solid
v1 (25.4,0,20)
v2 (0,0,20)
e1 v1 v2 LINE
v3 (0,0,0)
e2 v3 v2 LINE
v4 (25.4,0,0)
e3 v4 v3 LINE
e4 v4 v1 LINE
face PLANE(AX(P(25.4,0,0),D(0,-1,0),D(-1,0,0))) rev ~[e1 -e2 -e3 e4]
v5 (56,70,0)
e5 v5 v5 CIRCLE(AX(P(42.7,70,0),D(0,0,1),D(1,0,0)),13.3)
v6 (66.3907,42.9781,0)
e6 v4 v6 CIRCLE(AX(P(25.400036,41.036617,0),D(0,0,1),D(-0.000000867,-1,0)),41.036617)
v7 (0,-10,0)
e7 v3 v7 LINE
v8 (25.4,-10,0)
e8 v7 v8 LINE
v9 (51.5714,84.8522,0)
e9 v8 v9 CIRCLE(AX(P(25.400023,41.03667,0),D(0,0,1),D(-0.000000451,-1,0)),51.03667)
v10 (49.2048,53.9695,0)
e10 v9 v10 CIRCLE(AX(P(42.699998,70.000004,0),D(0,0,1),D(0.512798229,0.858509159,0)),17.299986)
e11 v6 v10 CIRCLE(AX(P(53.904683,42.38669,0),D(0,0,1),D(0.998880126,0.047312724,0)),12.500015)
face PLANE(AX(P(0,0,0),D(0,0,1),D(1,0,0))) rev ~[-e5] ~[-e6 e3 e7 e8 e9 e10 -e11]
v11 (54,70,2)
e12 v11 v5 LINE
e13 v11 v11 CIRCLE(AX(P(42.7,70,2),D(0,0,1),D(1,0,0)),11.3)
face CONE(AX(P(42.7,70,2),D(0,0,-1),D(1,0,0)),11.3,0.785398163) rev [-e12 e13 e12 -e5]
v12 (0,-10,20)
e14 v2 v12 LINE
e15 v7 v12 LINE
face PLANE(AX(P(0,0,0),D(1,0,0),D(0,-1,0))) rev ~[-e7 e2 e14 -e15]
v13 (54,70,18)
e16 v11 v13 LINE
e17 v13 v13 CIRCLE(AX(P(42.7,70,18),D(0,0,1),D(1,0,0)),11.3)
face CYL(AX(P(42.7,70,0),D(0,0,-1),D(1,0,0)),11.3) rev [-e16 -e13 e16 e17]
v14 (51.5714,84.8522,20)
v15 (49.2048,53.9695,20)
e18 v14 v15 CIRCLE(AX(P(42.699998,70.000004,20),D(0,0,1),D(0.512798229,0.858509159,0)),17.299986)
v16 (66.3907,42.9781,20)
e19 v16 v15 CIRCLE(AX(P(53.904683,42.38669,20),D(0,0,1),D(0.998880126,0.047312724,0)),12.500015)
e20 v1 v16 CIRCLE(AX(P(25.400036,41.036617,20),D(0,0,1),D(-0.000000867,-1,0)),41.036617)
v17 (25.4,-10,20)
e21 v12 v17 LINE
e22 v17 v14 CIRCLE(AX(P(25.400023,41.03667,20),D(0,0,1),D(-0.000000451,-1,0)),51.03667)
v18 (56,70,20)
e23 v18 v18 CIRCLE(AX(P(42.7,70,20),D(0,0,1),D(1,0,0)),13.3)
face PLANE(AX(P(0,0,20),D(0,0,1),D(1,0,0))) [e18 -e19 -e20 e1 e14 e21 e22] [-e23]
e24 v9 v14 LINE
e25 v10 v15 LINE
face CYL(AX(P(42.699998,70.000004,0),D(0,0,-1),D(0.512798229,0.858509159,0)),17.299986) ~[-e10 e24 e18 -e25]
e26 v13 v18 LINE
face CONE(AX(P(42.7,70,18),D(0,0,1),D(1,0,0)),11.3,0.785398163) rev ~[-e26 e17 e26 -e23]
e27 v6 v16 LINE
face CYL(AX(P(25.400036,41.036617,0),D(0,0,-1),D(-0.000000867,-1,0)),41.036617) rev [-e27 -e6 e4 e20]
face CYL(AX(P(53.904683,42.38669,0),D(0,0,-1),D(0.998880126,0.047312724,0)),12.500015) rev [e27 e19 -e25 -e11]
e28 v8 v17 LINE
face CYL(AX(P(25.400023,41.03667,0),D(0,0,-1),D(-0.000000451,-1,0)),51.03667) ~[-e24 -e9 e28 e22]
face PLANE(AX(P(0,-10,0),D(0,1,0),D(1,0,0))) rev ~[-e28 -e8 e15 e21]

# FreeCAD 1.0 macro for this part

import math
import FreeCAD as App
import Part
import Sketcher
from FreeCAD import Vector


def edges_at(feature, points):
    """Names of the edges that pass closest to the given points."""
    edges = feature.Shape.Edges
    near = lambda p: min(range(len(edges)), key=lambda i: edges[i].distToShape(Part.Vertex(*p))[0])
    return sorted({f"Edge{near(p) + 1}" for p in points})

doc = App.newDocument("Part")
params = doc.addObject("Spreadsheet::Sheet", "Params")
for row, (alias, value) in enumerate([
    ("sketch1_diameter", "22.6 mm"),
    ("sketch1_radius", "17.3 mm"),
    ("sketch1_radius2", "12.5 mm"),
    ("sketch1_height", "10 mm"),
    ("sketch1_width", "25.4 mm"),
    ("pad1_length", "20 mm"),
    ("chamfer_size", "2 mm"),
], start=1):
    params.set(f"A{row}", alias)
    params.set(f"B{row}", "=" + value)
    params.setAlias(f"B{row}", alias)

body = doc.addObject("PartDesign::Body", "Body")

# Sketch on XY plane
sketch1 = body.newObject("Sketcher::SketchObject", "Sketch")
sketch1.AttachmentSupport = (doc.getObject("XY_Plane"), [""])
sketch1.MapMode = "FlatFace"
sketch1.addGeometry([
    Part.LineSegment(Vector(0, 0, 0), Vector(0, -10, 0)),  # 0
    Part.LineSegment(Vector(0, -10, 0), Vector(25, -10, 0)),  # 1
    Part.ArcOfCircle(Part.Circle(Vector(25, 41, 0), Vector(0, 0, 1), 51), math.radians(-90), math.radians(59)),  # 2
    Part.ArcOfCircle(Part.Circle(Vector(43, 70, 0), Vector(0, 0, 1), 17), math.radians(59), math.radians(292)),  # 3
    Part.ArcOfCircle(Part.Circle(Vector(54, 42, 0), Vector(0, 0, 1), 12), math.radians(3), math.radians(112)),  # 4
    Part.ArcOfCircle(Part.Circle(Vector(25, 41, 0), Vector(0, 0, 1), 41), math.radians(-90), math.radians(3)),  # 5
    Part.LineSegment(Vector(25, 0, 0), Vector(0, 0, 0)),  # 6
    Part.Circle(Vector(43, 70, 0), Vector(0, 0, 1), 11),  # 7
], False)
sketch1.addConstraint([
    Sketcher.Constraint("Coincident", 0, 2, 1, 1),
    Sketcher.Constraint("Tangent", 1, 2, 2, 1),
    Sketcher.Constraint("Tangent", 2, 2, 3, 1),
    Sketcher.Constraint("Tangent", 3, 2, 4, 2),
    Sketcher.Constraint("Tangent", 4, 1, 5, 2),
    Sketcher.Constraint("Tangent", 5, 1, 6, 1),
    Sketcher.Constraint("Coincident", 6, 2, 0, 1),
    Sketcher.Constraint("Vertical", 0),
    Sketcher.Constraint("Horizontal", 1),
    Sketcher.Constraint("Horizontal", 6),
    Sketcher.Constraint("Coincident", 6, 2, -1, 1),
    Sketcher.Constraint("Coincident", 5, 3, 2, 3),
    Sketcher.Constraint("Coincident", 7, 3, 3, 3),
    Sketcher.Constraint("Diameter", 7, 22.6),
    Sketcher.Constraint("Radius", 3, 17.3),
    Sketcher.Constraint("Radius", 4, 12.5),
    Sketcher.Constraint("DistanceY", 0, 2, 0, 1, 10.0),
    Sketcher.Constraint("DistanceX", 1, 1, 1, 2, 25.4),
    Sketcher.Constraint("DistanceY", -1, 1, 3, 3, 70.0),
    Sketcher.Constraint("DistanceX", -1, 1, 3, 3, 42.7),
])
sketch1.setExpression("Constraints[13]", "Params.sketch1_diameter")
sketch1.setExpression("Constraints[14]", "Params.sketch1_radius")
sketch1.setExpression("Constraints[15]", "Params.sketch1_radius2")
sketch1.setExpression("Constraints[16]", "Params.sketch1_height")
sketch1.setExpression("Constraints[17]", "Params.sketch1_width")
pad1 = body.newObject("PartDesign::Pad", "Pad")
pad1.Profile = sketch1
pad1.setExpression("Length", "Params.pad1_length")
doc.recompute()

chamfer = body.newObject("PartDesign::Chamfer", "Chamfer")
chamfer.Base = (pad1, edges_at(pad1, [(31.4, 70, 20), (31.4, 70, 0)]))
chamfer.setExpression("Size", "Params.chamfer_size")

doc.recompute()
